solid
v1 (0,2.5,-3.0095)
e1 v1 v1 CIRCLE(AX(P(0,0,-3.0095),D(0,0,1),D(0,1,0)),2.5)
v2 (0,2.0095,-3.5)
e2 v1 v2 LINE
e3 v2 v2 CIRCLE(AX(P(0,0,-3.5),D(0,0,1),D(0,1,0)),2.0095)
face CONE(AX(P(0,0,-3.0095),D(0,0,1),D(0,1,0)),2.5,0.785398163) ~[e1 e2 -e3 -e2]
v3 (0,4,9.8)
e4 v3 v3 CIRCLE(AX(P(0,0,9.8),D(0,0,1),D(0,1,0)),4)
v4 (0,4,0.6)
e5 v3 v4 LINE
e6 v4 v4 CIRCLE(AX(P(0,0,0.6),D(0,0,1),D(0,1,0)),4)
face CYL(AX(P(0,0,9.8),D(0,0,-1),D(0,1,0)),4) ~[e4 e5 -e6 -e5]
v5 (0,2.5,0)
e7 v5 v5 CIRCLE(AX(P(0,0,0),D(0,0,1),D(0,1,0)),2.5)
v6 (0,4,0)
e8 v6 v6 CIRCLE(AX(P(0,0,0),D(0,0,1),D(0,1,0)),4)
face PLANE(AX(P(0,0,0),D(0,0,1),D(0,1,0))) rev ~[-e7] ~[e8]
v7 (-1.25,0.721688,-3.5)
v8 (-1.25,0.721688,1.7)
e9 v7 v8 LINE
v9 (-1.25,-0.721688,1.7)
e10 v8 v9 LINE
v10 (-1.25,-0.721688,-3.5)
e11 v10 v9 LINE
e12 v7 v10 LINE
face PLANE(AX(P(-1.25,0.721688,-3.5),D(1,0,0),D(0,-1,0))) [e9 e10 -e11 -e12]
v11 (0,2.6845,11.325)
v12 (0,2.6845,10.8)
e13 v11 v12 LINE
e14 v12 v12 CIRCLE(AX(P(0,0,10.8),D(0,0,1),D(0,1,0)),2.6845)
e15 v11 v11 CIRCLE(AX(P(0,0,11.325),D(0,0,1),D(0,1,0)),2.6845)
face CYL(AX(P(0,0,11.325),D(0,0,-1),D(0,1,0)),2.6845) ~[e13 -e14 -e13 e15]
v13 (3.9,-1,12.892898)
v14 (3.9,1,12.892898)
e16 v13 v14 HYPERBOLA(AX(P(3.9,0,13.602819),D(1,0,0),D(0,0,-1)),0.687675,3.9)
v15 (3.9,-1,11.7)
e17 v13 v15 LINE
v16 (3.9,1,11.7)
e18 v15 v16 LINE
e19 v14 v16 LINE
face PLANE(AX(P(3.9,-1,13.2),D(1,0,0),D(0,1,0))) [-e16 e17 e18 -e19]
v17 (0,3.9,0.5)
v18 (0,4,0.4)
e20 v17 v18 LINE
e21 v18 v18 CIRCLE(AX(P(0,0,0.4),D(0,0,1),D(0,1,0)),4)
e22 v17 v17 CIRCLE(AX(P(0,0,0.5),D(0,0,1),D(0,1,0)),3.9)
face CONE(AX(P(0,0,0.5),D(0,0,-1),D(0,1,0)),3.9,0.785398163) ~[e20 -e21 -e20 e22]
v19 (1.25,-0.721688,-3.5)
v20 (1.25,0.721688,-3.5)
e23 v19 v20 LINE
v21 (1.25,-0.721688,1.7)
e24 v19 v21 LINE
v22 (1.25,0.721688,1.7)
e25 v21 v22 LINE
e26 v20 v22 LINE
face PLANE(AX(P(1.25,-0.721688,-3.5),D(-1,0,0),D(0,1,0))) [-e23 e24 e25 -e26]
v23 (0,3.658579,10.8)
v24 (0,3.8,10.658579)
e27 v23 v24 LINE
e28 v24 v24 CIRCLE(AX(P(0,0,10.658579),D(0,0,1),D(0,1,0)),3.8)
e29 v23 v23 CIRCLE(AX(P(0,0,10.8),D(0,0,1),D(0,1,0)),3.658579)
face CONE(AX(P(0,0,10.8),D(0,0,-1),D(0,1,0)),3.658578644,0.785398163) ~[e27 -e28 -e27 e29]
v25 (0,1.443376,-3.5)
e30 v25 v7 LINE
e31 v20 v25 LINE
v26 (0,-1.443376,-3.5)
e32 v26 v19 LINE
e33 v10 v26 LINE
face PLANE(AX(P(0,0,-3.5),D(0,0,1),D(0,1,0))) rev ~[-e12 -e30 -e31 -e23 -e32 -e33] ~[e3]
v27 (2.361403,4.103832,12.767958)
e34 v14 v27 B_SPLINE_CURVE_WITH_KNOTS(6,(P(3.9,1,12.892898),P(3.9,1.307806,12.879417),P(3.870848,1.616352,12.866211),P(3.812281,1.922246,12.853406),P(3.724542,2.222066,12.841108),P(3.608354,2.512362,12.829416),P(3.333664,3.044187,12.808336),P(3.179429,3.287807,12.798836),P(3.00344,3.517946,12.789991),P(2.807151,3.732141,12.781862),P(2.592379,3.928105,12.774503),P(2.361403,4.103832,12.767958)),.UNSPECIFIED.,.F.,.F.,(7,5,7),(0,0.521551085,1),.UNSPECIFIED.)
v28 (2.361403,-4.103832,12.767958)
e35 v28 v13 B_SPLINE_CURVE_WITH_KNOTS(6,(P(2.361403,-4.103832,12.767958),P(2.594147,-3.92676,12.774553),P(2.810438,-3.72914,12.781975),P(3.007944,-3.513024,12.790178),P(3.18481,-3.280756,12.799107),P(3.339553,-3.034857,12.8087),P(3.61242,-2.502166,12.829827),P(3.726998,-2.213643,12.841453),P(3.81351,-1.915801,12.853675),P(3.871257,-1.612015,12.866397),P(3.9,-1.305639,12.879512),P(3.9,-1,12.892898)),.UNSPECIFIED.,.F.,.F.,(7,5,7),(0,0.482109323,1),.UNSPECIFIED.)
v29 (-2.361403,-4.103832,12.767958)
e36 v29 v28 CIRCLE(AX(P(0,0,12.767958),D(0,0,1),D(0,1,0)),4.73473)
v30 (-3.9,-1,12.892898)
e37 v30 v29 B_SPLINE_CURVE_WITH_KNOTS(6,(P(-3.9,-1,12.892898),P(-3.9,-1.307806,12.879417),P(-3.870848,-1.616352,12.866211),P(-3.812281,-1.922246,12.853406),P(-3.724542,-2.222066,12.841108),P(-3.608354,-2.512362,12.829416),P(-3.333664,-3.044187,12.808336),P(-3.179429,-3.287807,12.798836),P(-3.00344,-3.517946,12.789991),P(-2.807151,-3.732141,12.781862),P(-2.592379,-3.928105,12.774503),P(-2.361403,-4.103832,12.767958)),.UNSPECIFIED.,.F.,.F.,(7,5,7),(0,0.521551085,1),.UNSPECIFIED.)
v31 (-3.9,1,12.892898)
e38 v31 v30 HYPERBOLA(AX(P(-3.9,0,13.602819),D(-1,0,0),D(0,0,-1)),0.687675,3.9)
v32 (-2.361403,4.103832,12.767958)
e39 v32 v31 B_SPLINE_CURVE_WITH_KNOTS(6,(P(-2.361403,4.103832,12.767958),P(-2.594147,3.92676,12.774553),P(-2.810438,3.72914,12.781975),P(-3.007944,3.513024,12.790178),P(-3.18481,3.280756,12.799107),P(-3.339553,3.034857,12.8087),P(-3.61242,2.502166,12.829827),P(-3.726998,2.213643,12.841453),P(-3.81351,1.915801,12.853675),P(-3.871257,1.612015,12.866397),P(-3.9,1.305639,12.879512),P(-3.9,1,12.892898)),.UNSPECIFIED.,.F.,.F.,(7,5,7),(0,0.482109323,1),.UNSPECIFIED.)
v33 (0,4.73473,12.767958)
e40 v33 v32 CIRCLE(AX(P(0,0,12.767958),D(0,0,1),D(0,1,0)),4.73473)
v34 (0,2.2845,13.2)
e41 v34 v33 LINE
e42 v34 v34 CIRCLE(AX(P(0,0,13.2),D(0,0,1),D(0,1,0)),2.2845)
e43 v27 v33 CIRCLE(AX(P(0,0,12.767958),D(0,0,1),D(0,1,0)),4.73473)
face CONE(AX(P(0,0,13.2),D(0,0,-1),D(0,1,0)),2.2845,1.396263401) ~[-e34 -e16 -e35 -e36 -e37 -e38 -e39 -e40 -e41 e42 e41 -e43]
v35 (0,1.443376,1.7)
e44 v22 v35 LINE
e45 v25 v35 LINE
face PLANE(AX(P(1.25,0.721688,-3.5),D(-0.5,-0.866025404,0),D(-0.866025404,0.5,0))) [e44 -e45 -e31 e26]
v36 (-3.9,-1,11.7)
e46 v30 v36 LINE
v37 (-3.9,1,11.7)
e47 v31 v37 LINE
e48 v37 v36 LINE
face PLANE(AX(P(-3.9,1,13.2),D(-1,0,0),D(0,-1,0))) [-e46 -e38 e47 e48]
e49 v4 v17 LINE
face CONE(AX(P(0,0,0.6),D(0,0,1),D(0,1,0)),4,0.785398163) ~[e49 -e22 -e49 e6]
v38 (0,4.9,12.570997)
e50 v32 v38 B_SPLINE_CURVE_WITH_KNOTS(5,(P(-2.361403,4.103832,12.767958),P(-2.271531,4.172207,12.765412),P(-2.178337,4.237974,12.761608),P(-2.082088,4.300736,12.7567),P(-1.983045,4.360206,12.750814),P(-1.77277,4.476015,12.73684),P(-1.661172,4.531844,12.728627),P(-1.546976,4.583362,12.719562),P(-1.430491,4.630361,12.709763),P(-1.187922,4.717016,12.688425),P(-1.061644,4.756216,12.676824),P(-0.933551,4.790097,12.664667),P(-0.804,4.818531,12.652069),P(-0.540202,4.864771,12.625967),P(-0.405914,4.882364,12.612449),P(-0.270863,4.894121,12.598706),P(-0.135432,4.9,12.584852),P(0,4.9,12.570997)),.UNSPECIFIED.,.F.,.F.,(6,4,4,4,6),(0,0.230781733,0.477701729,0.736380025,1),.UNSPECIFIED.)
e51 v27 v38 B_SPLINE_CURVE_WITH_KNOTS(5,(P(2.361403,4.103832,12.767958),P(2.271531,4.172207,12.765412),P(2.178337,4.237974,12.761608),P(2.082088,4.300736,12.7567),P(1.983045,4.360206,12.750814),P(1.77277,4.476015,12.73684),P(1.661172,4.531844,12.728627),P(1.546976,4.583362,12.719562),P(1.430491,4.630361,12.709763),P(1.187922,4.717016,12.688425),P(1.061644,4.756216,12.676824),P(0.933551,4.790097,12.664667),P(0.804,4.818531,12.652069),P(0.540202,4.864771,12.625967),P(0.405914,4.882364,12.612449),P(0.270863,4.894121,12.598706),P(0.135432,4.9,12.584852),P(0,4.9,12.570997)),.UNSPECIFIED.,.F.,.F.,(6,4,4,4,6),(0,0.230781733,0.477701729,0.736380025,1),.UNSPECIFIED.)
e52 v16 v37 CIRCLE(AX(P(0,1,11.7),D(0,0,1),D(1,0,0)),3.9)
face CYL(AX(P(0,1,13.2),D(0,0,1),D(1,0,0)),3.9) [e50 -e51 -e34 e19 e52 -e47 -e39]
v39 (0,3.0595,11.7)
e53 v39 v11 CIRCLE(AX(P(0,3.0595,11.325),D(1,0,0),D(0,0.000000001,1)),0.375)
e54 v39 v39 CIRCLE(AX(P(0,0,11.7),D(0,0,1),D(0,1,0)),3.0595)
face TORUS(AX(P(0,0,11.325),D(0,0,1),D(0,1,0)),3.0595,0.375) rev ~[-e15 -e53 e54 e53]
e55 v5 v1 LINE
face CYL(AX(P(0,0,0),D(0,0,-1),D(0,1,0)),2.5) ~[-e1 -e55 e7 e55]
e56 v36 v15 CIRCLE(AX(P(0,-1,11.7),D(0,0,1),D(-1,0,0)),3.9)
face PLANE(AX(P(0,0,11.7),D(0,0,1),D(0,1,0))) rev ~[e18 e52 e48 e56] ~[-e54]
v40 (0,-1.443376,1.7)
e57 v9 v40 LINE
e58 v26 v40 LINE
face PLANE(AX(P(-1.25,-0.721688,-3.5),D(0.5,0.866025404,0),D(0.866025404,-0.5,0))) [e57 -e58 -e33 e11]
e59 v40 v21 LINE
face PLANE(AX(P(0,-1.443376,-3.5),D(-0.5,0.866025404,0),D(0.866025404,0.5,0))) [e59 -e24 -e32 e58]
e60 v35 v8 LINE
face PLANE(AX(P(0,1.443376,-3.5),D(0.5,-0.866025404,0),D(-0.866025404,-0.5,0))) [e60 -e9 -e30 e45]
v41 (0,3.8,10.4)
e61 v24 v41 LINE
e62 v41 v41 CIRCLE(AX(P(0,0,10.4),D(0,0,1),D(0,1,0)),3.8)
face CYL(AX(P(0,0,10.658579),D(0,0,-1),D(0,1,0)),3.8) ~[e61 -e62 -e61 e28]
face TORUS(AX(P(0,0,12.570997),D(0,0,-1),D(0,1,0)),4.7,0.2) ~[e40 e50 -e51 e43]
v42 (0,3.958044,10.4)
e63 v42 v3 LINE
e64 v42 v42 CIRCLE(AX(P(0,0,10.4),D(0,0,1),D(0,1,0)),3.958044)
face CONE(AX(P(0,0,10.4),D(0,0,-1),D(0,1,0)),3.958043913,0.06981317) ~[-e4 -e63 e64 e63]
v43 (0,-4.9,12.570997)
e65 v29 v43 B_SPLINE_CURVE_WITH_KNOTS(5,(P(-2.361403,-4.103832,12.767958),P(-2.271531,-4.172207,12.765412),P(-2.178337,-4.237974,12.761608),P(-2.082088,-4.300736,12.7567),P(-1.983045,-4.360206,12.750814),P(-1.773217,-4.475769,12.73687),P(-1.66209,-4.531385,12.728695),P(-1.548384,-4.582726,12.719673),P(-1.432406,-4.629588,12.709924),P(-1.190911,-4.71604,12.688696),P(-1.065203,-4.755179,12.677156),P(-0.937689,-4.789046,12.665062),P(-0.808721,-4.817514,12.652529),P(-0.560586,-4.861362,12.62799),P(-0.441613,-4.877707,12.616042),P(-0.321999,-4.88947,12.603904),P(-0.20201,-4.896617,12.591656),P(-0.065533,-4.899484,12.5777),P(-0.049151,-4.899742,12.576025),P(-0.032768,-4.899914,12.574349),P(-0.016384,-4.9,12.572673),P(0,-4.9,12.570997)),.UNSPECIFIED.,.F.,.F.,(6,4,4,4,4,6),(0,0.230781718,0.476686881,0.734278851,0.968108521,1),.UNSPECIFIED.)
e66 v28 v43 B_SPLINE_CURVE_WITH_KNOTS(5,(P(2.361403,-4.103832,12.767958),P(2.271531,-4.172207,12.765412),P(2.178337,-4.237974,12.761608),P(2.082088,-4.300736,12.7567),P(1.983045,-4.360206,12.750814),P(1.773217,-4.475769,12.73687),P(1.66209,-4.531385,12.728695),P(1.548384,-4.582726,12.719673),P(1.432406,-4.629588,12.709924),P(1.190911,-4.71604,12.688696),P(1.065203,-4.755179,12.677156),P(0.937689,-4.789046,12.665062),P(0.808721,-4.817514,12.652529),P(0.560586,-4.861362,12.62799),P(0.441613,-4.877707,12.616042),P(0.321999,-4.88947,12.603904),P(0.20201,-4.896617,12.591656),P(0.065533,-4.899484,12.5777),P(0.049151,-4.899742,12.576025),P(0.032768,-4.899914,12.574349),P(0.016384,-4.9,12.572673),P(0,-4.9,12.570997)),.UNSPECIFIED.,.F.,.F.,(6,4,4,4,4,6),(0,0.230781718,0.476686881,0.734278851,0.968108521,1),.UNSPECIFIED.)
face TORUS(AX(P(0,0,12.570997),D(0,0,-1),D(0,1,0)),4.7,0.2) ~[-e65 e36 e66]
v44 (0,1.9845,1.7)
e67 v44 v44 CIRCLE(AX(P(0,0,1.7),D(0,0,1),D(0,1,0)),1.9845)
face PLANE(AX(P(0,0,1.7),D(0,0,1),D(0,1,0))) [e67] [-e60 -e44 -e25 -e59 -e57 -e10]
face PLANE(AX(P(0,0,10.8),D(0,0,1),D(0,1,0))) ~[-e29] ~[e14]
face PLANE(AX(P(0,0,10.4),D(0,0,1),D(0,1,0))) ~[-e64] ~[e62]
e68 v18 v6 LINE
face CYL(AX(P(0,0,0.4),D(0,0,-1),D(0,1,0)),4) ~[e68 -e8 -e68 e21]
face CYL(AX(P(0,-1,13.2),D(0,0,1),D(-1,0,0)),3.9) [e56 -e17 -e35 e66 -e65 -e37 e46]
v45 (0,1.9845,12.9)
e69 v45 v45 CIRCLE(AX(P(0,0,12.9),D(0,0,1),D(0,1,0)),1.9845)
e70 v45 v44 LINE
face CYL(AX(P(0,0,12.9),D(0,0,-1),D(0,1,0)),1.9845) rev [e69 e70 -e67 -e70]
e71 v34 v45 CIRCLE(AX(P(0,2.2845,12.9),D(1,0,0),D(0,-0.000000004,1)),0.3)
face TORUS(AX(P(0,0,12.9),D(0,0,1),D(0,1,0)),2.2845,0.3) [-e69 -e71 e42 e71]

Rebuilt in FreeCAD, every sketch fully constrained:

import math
import FreeCAD as App
import Part
import Sketcher
Q = App.Units.Quantity


def add_polygon(sketch, points):
    """Adds a closed chain of lines whose ends are joined by coincident constraints."""
    first, n = sketch.GeometryCount, len(points)
    for a, b in zip(points, points[1:] + points[:1]):
        sketch.addGeometry(Part.LineSegment(App.Vector(*a, 0), App.Vector(*b, 0)), False)
    for i in range(n):
        sketch.addConstraint(Sketcher.Constraint("Coincident", first + i, 2, first + (i + 1) % n, 1))

doc = App.newDocument("Part")
body = doc.addObject("PartDesign::Body", "Body")

# Sketch on YZ plane
sketch1 = body.newObject("Sketcher::SketchObject", "Sketch")
sketch1.AttachmentSupport = (doc.getObject("YZ_Plane"), [""])
sketch1.MapMode = "FlatFace"
sketch1.addGeometry(Part.LineSegment(App.Vector(2.2845, 13.2, 0), App.Vector(0, 13.2, 0)), False)
sketch1.addGeometry(Part.LineSegment(App.Vector(0, 13.2, 0), App.Vector(0, -3.5, 0)), False)
sketch1.addGeometry(Part.LineSegment(App.Vector(0, -3.5, 0), App.Vector(2.0095, -3.5, 0)), False)
sketch1.addGeometry(Part.LineSegment(App.Vector(2.0095, -3.5, 0), App.Vector(2.5, -3.0095, 0)), False)
sketch1.addGeometry(Part.LineSegment(App.Vector(2.5, -3.0095, 0), App.Vector(2.5, 0, 0)), False)
sketch1.addGeometry(Part.LineSegment(App.Vector(2.5, 0, 0), App.Vector(4, 0, 0)), False)
sketch1.addGeometry(Part.LineSegment(App.Vector(4, 0, 0), App.Vector(4, 0.4, 0)), False)
sketch1.addGeometry(Part.LineSegment(App.Vector(4, 0.4, 0), App.Vector(3.9, 0.5, 0)), False)
sketch1.addGeometry(Part.LineSegment(App.Vector(3.9, 0.5, 0), App.Vector(4, 0.6, 0)), False)
sketch1.addGeometry(Part.LineSegment(App.Vector(4, 0.6, 0), App.Vector(4, 9.8, 0)), False)
sketch1.addGeometry(Part.LineSegment(App.Vector(4, 9.8, 0), App.Vector(3.958044, 10.4, 0)), False)
sketch1.addGeometry(Part.LineSegment(App.Vector(3.958044, 10.4, 0), App.Vector(3.8, 10.4, 0)), False)
sketch1.addGeometry(Part.LineSegment(App.Vector(3.8, 10.4, 0), App.Vector(3.8, 10.658579, 0)), False)
sketch1.addGeometry(Part.LineSegment(App.Vector(3.8, 10.658579, 0), App.Vector(3.658579, 10.8, 0)), False)
sketch1.addGeometry(Part.LineSegment(App.Vector(3.658579, 10.8, 0), App.Vector(2.6845, 10.8, 0)), False)
sketch1.addGeometry(Part.LineSegment(App.Vector(2.6845, 10.8, 0), App.Vector(2.6845, 11.325, 0)), False)
sketch1.addGeometry(Part.ArcOfCircle(Part.Circle(App.Vector(3.0595, 11.325, 0), App.Vector(0, 0, 1), 0.375), math.radians(90), math.radians(180)), False)
sketch1.addGeometry(Part.LineSegment(App.Vector(3.0595, 11.7, 0), App.Vector(4.9, 11.7, 0)), False)
sketch1.addGeometry(Part.LineSegment(App.Vector(4.9, 11.7, 0), App.Vector(4.9, 12.570997, 0)), False)
sketch1.addGeometry(Part.ArcOfCircle(Part.Circle(App.Vector(4.7, 12.570997, 0), App.Vector(0, 0, 1), 0.2), math.radians(0), math.radians(80)), False)
sketch1.addGeometry(Part.LineSegment(App.Vector(4.73473, 12.767958, 0), App.Vector(2.2845, 13.2, 0)), False)
sketch1.addConstraint(Sketcher.Constraint("Coincident", 0, 2, 1, 1))
sketch1.addConstraint(Sketcher.Constraint("Coincident", 1, 2, 2, 1))
sketch1.addConstraint(Sketcher.Constraint("Coincident", 2, 2, 3, 1))
sketch1.addConstraint(Sketcher.Constraint("Coincident", 3, 2, 4, 1))
sketch1.addConstraint(Sketcher.Constraint("Coincident", 4, 2, 5, 1))
sketch1.addConstraint(Sketcher.Constraint("Coincident", 5, 2, 6, 1))
sketch1.addConstraint(Sketcher.Constraint("Coincident", 6, 2, 7, 1))
sketch1.addConstraint(Sketcher.Constraint("Coincident", 7, 2, 8, 1))
sketch1.addConstraint(Sketcher.Constraint("Coincident", 8, 2, 9, 1))
sketch1.addConstraint(Sketcher.Constraint("Coincident", 9, 2, 10, 1))
sketch1.addConstraint(Sketcher.Constraint("Coincident", 10, 2, 11, 1))
sketch1.addConstraint(Sketcher.Constraint("Coincident", 11, 2, 12, 1))
sketch1.addConstraint(Sketcher.Constraint("Coincident", 12, 2, 13, 1))
sketch1.addConstraint(Sketcher.Constraint("Coincident", 13, 2, 14, 1))
sketch1.addConstraint(Sketcher.Constraint("Coincident", 14, 2, 15, 1))
sketch1.addConstraint(Sketcher.Constraint("Tangent", 15, 2, 16, 2))
sketch1.addConstraint(Sketcher.Constraint("Tangent", 16, 1, 17, 1))
sketch1.addConstraint(Sketcher.Constraint("Coincident", 17, 2, 18, 1))
sketch1.addConstraint(Sketcher.Constraint("Tangent", 18, 2, 19, 1))
sketch1.addConstraint(Sketcher.Constraint("Tangent", 19, 2, 20, 1))
sketch1.addConstraint(Sketcher.Constraint("Coincident", 20, 2, 0, 1))
sketch1.addConstraint(Sketcher.Constraint("Horizontal", 0))
sketch1.addConstraint(Sketcher.Constraint("Vertical", 1))
sketch1.addConstraint(Sketcher.Constraint("Horizontal", 2))
sketch1.addConstraint(Sketcher.Constraint("Vertical", 4))
sketch1.addConstraint(Sketcher.Constraint("Horizontal", 5))
sketch1.addConstraint(Sketcher.Constraint("Vertical", 6))
sketch1.addConstraint(Sketcher.Constraint("Vertical", 9))
sketch1.addConstraint(Sketcher.Constraint("Horizontal", 11))
sketch1.addConstraint(Sketcher.Constraint("Vertical", 12))
sketch1.addConstraint(Sketcher.Constraint("Horizontal", 14))
sketch1.addConstraint(Sketcher.Constraint("Vertical", 15))
sketch1.addConstraint(Sketcher.Constraint("Horizontal", 17))
sketch1.addConstraint(Sketcher.Constraint("Vertical", 18))
sketch1.addConstraint(Sketcher.Constraint("PointOnObject", 0, 2, -2))
sketch1.addConstraint(Sketcher.Constraint("PointOnObject", 4, 2, -1))
sketch1.addConstraint(Sketcher.Constraint("Perpendicular", 3, 7))
sketch1.addConstraint(Sketcher.Constraint("Perpendicular", 7, 8))
sketch1.addConstraint(Sketcher.Constraint("Perpendicular", 8, 13))
sketch1.addConstraint(Sketcher.Constraint("Vertical", 6, 2, 8, 2))
sketch1.addConstraint(Sketcher.Constraint("Equal", 7, 8))
sketch1.addConstraint(Sketcher.Constraint("Radius", 19, 0.2))
sketch1.addConstraint(Sketcher.Constraint("Angle", 10, Q("94 deg")))
sketch1.addConstraint(Sketcher.Constraint("Angle", 20, Q("170 deg")))
sketch1.addConstraint(Sketcher.Constraint("DistanceX", 5, 1, 5, 2, 1.5))
sketch1.addConstraint(Sketcher.Constraint("DistanceY", 1, 2, 1, 1, 16.7))
sketch1.addConstraint(Sketcher.Constraint("DistanceY", 6, 1, 6, 2, 0.4))
sketch1.addConstraint(Sketcher.Constraint("DistanceY", 9, 1, 9, 2, 9.2))
sketch1.addConstraint(Sketcher.Constraint("DistanceX", -1, 1, 5, 2, 4.0))
sketch1.addConstraint(Sketcher.Constraint("Radius", 16, 0.375))
sketch1.addConstraint(Sketcher.Constraint("DistanceY", 2, 2, 7, 2, 4.0))
sketch1.addConstraint(Sketcher.Constraint("DistanceY", 9, 2, 13, 2, 1.0))
sketch1.addConstraint(Sketcher.Constraint("Distance", 13, 0.2))
sketch1.addConstraint(Sketcher.Constraint("DistanceX", -1, 1, 19, 3, 4.7))
sketch1.addConstraint(Sketcher.Constraint("DistanceY", -1, 1, 0, 2, 13.2))
sketch1.addConstraint(Sketcher.Constraint("DistanceY", -1, 1, 10, 2, 10.4))
sketch1.addConstraint(Sketcher.Constraint("DistanceX", -1, 1, 11, 2, 3.8))
sketch1.addConstraint(Sketcher.Constraint("DistanceY", -1, 1, 16, 1, 11.7))
sketch1.addConstraint(Sketcher.Constraint("DistanceX", 20, 2, 15, 2, 0.4))
sketch1.addConstraint(Sketcher.Constraint("DistanceX", 2, 2, 16, 3, 1.05))
sketch1.addConstraint(Sketcher.Constraint("DistanceX", 0, 2, 0, 1, 2.2845))
revolution = body.newObject("PartDesign::Revolution", "Revolution")
revolution.Profile = sketch1
revolution.ReferenceAxis = (sketch1, ["V_Axis"])
revolution.Angle = 360

# Sketch on XY plane
sketch2 = body.newObject("Sketcher::SketchObject", "Sketch001")
sketch2.AttachmentSupport = (doc.getObject("XY_Plane"), [""])
sketch2.MapMode = "FlatFace"
sketch2.AttachmentOffset = App.Placement(App.Vector(0, 0, 13.2), App.Rotation())
add_polygon(sketch2, [(-9.8, 9.8), (-9.8, -9.8), (9.8, -9.8), (9.8, 9.8)])  # lines 0-3
sketch2.addGeometry(Part.LineSegment(App.Vector(-3.9, -1, 0), App.Vector(-3.9, 1, 0)), False)  # 4
sketch2.addGeometry(Part.ArcOfCircle(Part.Circle(App.Vector(0, 1, 0), App.Vector(0, 0, 1), 3.9), math.radians(0), math.radians(180)), False)  # 5
sketch2.addGeometry(Part.LineSegment(App.Vector(3.9, 1, 0), App.Vector(3.9, -1, 0)), False)  # 6
sketch2.addGeometry(Part.ArcOfCircle(Part.Circle(App.Vector(0, -1, 0), App.Vector(0, 0, 1), 3.9), math.radians(180), math.radians(360)), False)  # 7
sketch2.addConstraint(Sketcher.Constraint("Tangent", 4, 2, 5, 2))
sketch2.addConstraint(Sketcher.Constraint("Tangent", 5, 1, 6, 1))
sketch2.addConstraint(Sketcher.Constraint("Tangent", 6, 2, 7, 2))
sketch2.addConstraint(Sketcher.Constraint("Tangent", 7, 1, 4, 1))
sketch2.addConstraint(Sketcher.Constraint("Vertical", 0))
sketch2.addConstraint(Sketcher.Constraint("Horizontal", 1))
sketch2.addConstraint(Sketcher.Constraint("Vertical", 2))
sketch2.addConstraint(Sketcher.Constraint("Horizontal", 3))
sketch2.addConstraint(Sketcher.Constraint("Vertical", 4))
sketch2.addConstraint(Sketcher.Constraint("Vertical", 6))
sketch2.addConstraint(Sketcher.Constraint("Symmetric", 5, 3, 7, 3, -1, 1))
sketch2.addConstraint(Sketcher.Constraint("Symmetric", 0, 2, 2, 2, -1, 1))
sketch2.addConstraint(Sketcher.Constraint("Equal", 3, 0))
sketch2.addConstraint(Sketcher.Constraint("Radius", 5, 3.9))
sketch2.addConstraint(Sketcher.Constraint("DistanceY", 4, 1, 4, 2, 2.0))
sketch2.addConstraint(Sketcher.Constraint("DistanceX", 1, 1, 1, 2, 19.6))
pocket1 = body.newObject("PartDesign::Pocket", "Pocket")
pocket1.Profile = sketch2
pocket1.Length = 1.5

# Sketch on XY plane
sketch3 = body.newObject("Sketcher::SketchObject", "Sketch002")
sketch3.AttachmentSupport = (doc.getObject("XY_Plane"), [""])
sketch3.MapMode = "FlatFace"
sketch3.AttachmentOffset = App.Placement(App.Vector(0, 0, -3.5), App.Rotation())
add_polygon(sketch3, [(-1.25, -0.721688), (0, -1.443376), (1.25, -0.721688), (1.25, 0.721688), (0, 1.443376), (-1.25, 0.721688)])  # lines 0-5
sketch3.addConstraint(Sketcher.Constraint("Vertical", 2))
sketch3.addConstraint(Sketcher.Constraint("Vertical", 5))
sketch3.addConstraint(Sketcher.Constraint("Symmetric", 0, 2, 3, 2, -1, 1))
sketch3.addConstraint(Sketcher.Constraint("Symmetric", 1, 2, 4, 2, -1, 1))
sketch3.addConstraint(Sketcher.Constraint("PointOnObject", 0, 2, -2))
sketch3.addConstraint(Sketcher.Constraint("Parallel", 0, 3))
sketch3.addConstraint(Sketcher.Constraint("Horizontal", 2, 2, 4, 2))
sketch3.addConstraint(Sketcher.Constraint("Angle", 0, Q("-30 deg")))
sketch3.addConstraint(Sketcher.Constraint("DistanceX", 4, 2, 2, 2, 2.5))
sketch3.addConstraint(Sketcher.Constraint("DistanceY", 2, 1, 2, 2, 1.443376))
pocket2 = body.newObject("PartDesign::Pocket", "Pocket001")
pocket2.Profile = sketch3
pocket2.Length = 5.2
pocket2.Reversed = True

# Sketch on YZ plane
sketch4 = body.newObject("Sketcher::SketchObject", "Sketch003")
sketch4.AttachmentSupport = (doc.getObject("YZ_Plane"), [""])
sketch4.MapMode = "FlatFace"
sketch4.addGeometry(Part.LineSegment(App.Vector(2.2845, 13.2, 0), App.Vector(0, 13.2, 0)), False)
sketch4.addGeometry(Part.LineSegment(App.Vector(0, 13.2, 0), App.Vector(0, 1.7, 0)), False)
sketch4.addGeometry(Part.LineSegment(App.Vector(0, 1.7, 0), App.Vector(1.9845, 1.7, 0)), False)
sketch4.addGeometry(Part.LineSegment(App.Vector(1.9845, 1.7, 0), App.Vector(1.9845, 12.9, 0)), False)
sketch4.addGeometry(Part.ArcOfCircle(Part.Circle(App.Vector(2.2845, 12.9, 0), App.Vector(0, 0, 1), 0.3), math.radians(90), math.radians(180)), False)
sketch4.addConstraint(Sketcher.Constraint("Coincident", 0, 2, 1, 1))
sketch4.addConstraint(Sketcher.Constraint("Coincident", 1, 2, 2, 1))
sketch4.addConstraint(Sketcher.Constraint("Coincident", 2, 2, 3, 1))
sketch4.addConstraint(Sketcher.Constraint("Tangent", 3, 2, 4, 2))
sketch4.addConstraint(Sketcher.Constraint("Tangent", 4, 1, 0, 1))
sketch4.addConstraint(Sketcher.Constraint("Horizontal", 0))
sketch4.addConstraint(Sketcher.Constraint("Vertical", 1))
sketch4.addConstraint(Sketcher.Constraint("Horizontal", 2))
sketch4.addConstraint(Sketcher.Constraint("Vertical", 3))
sketch4.addConstraint(Sketcher.Constraint("PointOnObject", 0, 2, -2))
sketch4.addConstraint(Sketcher.Constraint("Radius", 4, 0.3))
sketch4.addConstraint(Sketcher.Constraint("DistanceY", 1, 2, 1, 1, 11.5))
sketch4.addConstraint(Sketcher.Constraint("DistanceY", -1, 1, 4, 3, 12.9))
sketch4.addConstraint(Sketcher.Constraint("DistanceX", 0, 2, 0, 1, 2.2845))
groove = body.newObject("PartDesign::Groove", "Groove")
groove.Profile = sketch4
groove.ReferenceAxis = (sketch4, ["V_Axis"])
groove.Angle = 360

doc.recompute()
